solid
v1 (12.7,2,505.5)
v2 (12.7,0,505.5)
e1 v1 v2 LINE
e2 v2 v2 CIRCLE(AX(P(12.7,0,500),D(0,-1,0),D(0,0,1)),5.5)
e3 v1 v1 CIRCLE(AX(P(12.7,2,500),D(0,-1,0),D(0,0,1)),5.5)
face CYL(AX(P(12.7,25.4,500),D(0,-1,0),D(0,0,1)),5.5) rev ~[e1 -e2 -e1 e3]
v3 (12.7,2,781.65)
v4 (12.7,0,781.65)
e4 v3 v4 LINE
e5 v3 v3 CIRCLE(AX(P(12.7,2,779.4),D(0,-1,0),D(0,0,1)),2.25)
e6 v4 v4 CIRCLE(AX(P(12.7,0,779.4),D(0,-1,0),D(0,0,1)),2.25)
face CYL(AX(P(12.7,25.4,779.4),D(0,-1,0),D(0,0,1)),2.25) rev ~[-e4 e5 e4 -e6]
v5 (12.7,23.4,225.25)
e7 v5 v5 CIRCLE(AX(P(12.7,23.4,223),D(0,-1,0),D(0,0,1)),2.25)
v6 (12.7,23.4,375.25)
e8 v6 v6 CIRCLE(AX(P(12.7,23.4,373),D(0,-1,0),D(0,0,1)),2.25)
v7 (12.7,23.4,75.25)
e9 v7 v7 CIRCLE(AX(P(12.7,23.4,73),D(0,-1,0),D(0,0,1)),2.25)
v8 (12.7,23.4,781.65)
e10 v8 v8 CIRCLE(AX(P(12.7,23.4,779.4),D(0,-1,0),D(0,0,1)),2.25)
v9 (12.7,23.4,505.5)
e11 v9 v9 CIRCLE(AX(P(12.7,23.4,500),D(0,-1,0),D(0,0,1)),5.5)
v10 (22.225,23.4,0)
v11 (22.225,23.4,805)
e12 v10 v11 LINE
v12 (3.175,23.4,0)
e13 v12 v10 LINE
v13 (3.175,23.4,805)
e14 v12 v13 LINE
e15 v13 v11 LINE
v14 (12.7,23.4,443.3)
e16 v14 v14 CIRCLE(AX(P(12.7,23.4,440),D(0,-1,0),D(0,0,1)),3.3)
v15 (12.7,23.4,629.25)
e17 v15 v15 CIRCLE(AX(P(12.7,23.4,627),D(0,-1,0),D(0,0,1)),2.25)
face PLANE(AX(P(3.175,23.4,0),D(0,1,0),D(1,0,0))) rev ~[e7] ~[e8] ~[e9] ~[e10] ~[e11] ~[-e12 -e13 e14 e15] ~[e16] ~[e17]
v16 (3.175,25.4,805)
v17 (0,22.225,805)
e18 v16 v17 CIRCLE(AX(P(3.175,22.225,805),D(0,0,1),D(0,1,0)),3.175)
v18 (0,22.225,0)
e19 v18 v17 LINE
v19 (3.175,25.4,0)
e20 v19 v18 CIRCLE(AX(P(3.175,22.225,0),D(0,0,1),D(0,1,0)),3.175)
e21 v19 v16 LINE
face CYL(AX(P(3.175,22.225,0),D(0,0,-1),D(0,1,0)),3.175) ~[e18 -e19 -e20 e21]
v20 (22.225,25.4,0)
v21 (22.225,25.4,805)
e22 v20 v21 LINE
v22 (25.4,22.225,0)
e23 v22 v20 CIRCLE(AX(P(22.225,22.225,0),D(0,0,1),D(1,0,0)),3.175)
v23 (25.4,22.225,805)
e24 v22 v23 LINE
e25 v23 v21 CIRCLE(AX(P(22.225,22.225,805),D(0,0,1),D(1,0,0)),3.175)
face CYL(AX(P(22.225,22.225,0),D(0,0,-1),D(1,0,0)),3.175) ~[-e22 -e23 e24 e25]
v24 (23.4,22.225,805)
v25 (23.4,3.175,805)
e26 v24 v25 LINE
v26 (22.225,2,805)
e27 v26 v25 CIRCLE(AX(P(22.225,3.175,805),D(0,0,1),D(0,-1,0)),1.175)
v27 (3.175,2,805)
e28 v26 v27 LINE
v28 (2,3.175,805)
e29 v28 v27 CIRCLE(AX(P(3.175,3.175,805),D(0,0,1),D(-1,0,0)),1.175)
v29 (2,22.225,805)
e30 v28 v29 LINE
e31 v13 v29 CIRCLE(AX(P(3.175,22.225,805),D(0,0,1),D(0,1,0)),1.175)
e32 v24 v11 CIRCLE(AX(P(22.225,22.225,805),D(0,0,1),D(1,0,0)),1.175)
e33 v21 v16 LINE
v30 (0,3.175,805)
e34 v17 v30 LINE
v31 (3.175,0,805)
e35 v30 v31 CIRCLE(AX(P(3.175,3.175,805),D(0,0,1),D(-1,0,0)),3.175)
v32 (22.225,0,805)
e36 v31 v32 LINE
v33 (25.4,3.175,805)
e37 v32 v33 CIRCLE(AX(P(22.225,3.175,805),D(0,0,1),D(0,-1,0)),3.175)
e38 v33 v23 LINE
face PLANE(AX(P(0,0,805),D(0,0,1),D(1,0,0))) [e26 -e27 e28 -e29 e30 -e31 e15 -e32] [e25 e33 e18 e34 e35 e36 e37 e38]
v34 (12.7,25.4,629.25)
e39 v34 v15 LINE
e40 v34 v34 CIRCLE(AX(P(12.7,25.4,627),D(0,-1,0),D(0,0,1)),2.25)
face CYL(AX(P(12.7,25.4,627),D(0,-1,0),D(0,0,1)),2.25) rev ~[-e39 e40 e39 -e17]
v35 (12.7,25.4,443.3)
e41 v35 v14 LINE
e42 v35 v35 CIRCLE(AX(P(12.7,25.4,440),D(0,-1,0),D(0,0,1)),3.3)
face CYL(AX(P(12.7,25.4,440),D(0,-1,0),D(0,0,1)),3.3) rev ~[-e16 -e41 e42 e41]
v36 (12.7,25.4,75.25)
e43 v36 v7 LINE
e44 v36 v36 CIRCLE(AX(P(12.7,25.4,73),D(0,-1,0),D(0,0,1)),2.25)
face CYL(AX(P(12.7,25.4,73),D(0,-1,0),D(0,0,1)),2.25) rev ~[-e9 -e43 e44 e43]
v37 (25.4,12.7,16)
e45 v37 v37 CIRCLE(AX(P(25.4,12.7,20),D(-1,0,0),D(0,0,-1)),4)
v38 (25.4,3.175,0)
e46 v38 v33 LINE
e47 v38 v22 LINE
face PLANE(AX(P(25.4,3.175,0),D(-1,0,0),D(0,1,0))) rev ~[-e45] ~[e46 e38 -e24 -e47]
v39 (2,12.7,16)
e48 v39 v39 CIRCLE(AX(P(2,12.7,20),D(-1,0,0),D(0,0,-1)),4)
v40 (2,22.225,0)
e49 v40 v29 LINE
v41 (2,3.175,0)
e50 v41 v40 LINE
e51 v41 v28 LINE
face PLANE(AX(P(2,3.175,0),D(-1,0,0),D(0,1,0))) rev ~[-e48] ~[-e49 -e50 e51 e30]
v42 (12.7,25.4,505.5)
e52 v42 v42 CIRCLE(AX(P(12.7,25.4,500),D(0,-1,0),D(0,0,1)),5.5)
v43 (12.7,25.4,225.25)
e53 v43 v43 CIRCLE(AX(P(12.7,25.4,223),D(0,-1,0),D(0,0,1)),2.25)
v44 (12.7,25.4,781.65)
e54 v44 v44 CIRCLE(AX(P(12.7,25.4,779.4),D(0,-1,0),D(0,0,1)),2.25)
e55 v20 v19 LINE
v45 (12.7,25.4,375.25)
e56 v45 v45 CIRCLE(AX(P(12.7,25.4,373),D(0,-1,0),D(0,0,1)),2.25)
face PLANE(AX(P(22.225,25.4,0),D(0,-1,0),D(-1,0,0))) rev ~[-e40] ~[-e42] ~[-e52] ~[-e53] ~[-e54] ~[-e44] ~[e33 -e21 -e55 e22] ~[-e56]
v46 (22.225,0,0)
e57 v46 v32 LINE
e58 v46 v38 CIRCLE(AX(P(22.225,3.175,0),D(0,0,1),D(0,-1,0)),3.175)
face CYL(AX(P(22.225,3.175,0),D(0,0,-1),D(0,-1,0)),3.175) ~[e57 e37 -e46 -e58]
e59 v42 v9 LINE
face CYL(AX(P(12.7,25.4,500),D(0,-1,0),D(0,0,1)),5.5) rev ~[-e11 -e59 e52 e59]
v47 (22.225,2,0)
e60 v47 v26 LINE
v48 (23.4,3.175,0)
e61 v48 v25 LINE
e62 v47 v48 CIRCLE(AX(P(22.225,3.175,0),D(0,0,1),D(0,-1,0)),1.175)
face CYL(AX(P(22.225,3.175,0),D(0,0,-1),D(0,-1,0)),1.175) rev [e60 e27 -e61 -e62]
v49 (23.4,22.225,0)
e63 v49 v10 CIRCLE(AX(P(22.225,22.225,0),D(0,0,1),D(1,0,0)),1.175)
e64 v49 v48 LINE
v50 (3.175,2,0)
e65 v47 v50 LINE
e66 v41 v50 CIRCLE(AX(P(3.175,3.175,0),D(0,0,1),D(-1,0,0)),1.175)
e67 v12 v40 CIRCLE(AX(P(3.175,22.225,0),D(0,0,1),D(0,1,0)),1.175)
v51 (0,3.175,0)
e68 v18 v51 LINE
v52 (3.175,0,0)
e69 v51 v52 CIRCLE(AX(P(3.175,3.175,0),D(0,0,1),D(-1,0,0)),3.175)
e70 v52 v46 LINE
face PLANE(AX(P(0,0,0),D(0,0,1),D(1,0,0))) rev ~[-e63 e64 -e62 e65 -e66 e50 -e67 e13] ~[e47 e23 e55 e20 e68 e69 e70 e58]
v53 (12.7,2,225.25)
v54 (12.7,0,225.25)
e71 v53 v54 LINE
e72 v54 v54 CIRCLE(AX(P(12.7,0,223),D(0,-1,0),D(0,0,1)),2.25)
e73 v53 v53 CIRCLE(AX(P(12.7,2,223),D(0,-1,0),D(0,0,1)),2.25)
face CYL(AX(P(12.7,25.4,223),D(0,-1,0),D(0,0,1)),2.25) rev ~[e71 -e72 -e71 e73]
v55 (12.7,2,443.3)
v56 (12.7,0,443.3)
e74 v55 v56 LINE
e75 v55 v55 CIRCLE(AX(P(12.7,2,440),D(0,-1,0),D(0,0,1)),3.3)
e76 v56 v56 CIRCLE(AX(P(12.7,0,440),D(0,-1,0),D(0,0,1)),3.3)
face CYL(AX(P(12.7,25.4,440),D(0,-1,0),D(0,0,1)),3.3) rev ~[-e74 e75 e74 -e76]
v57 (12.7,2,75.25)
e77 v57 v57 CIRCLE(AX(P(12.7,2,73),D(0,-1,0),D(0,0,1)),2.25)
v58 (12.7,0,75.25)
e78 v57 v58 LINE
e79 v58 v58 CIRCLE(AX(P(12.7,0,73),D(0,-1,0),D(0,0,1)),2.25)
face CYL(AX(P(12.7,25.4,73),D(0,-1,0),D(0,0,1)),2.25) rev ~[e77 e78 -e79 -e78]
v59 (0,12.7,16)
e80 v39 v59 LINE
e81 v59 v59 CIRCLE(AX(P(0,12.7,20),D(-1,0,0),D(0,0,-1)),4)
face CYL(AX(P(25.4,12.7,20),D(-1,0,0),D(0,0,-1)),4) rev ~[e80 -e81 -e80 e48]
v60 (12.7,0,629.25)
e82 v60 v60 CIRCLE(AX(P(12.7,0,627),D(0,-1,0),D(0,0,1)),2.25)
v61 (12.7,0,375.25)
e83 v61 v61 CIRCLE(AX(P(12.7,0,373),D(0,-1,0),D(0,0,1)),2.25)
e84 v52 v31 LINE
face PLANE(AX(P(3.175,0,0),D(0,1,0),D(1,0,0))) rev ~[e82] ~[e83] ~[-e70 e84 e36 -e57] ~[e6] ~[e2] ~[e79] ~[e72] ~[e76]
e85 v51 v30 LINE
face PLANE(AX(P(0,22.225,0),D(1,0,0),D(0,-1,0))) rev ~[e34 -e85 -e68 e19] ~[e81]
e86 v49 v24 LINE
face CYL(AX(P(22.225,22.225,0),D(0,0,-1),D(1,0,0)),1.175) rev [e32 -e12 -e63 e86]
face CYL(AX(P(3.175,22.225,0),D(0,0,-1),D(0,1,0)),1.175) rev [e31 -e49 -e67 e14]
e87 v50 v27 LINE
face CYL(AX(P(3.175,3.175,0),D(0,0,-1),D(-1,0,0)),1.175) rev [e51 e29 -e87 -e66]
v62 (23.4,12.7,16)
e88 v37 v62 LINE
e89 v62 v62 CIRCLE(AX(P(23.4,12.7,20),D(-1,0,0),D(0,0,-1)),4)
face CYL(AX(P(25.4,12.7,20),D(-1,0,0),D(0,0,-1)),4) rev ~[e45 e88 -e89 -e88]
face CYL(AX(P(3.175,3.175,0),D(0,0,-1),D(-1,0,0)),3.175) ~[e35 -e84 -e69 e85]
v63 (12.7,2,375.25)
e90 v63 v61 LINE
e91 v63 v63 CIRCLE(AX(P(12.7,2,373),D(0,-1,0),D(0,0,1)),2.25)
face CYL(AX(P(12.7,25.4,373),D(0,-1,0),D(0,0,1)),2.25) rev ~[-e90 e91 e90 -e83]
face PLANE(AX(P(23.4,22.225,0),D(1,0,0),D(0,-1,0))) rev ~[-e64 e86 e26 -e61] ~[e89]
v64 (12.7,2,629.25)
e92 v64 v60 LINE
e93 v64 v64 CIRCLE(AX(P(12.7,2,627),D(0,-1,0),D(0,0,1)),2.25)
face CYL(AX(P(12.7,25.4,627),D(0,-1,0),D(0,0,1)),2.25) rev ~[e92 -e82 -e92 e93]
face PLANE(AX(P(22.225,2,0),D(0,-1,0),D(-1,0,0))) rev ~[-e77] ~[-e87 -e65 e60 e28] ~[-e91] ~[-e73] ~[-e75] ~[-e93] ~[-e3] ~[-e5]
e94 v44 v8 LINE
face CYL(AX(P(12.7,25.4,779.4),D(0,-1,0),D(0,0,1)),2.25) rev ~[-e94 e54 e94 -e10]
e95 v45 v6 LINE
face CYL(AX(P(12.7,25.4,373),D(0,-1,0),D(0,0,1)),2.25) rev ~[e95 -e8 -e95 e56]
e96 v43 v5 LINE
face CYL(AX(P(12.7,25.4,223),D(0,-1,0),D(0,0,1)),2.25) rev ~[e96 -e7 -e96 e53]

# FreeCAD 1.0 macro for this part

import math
import FreeCAD as App
import Part
import Sketcher

V = App.Vector

doc = App.newDocument("Part")
body = doc.addObject("PartDesign::Body", "Body")

sketch1 = body.newObject("Sketcher::SketchObject", "Sketch")
sketch1.AttachmentSupport = (doc.getObject("XY_Plane"), [""])
sketch1.MapMode = "FlatFace"
sketch1.addGeometry(Part.ArcOfCircle(Part.Circle(V(3.2, 3.2, 0), V(0, 0, 1), 3.2), math.radians(180), math.radians(270)), False)
sketch1.addGeometry(Part.LineSegment(V(3.2, 0, 0), V(22.2, 0, 0)), False)
sketch1.addGeometry(Part.ArcOfCircle(Part.Circle(V(22.2, 3.2, 0), V(0, 0, 1), 3.2), math.radians(-90), math.radians(0)), False)
sketch1.addGeometry(Part.LineSegment(V(25.4, 3.2, 0), V(25.4, 22.2, 0)), False)
sketch1.addGeometry(Part.ArcOfCircle(Part.Circle(V(22.2, 22.2, 0), V(0, 0, 1), 3.2), math.radians(0), math.radians(90)), False)
sketch1.addGeometry(Part.LineSegment(V(22.2, 25.4, 0), V(3.2, 25.4, 0)), False)
sketch1.addGeometry(Part.ArcOfCircle(Part.Circle(V(3.2, 22.2, 0), V(0, 0, 1), 3.2), math.radians(90), math.radians(180)), False)
sketch1.addGeometry(Part.LineSegment(V(0, 22.2, 0), V(0, 3.2, 0)), False)
sketch1.addGeometry(Part.ArcOfCircle(Part.Circle(V(3.2, 22.2, 0), V(0, 0, 1), 1.2), math.radians(90), math.radians(180)), False)
sketch1.addGeometry(Part.LineSegment(V(3.2, 23.4, 0), V(22.2, 23.4, 0)), False)
sketch1.addGeometry(Part.ArcOfCircle(Part.Circle(V(22.2, 22.2, 0), V(0, 0, 1), 1.2), math.radians(0), math.radians(90)), False)
sketch1.addGeometry(Part.LineSegment(V(23.4, 22.2, 0), V(23.4, 3.2, 0)), False)
sketch1.addGeometry(Part.ArcOfCircle(Part.Circle(V(22.2, 3.2, 0), V(0, 0, 1), 1.2), math.radians(-90), math.radians(0)), False)
sketch1.addGeometry(Part.LineSegment(V(22.2, 2, 0), V(3.2, 2, 0)), False)
sketch1.addGeometry(Part.ArcOfCircle(Part.Circle(V(3.2, 3.2, 0), V(0, 0, 1), 1.2), math.radians(180), math.radians(270)), False)
sketch1.addGeometry(Part.LineSegment(V(2, 3.2, 0), V(2, 22.2, 0)), False)
sketch1.addConstraint(Sketcher.Constraint("Tangent", 0, 2, 1, 1))
sketch1.addConstraint(Sketcher.Constraint("Tangent", 1, 2, 2, 1))
sketch1.addConstraint(Sketcher.Constraint("Tangent", 2, 2, 3, 1))
sketch1.addConstraint(Sketcher.Constraint("Tangent", 3, 2, 4, 1))
sketch1.addConstraint(Sketcher.Constraint("Tangent", 4, 2, 5, 1))
sketch1.addConstraint(Sketcher.Constraint("Tangent", 5, 2, 6, 1))
sketch1.addConstraint(Sketcher.Constraint("Tangent", 6, 2, 7, 1))
sketch1.addConstraint(Sketcher.Constraint("Tangent", 7, 2, 0, 1))
sketch1.addConstraint(Sketcher.Constraint("Tangent", 8, 1, 9, 1))
sketch1.addConstraint(Sketcher.Constraint("Tangent", 9, 2, 10, 2))
sketch1.addConstraint(Sketcher.Constraint("Tangent", 10, 1, 11, 1))
sketch1.addConstraint(Sketcher.Constraint("Tangent", 11, 2, 12, 2))
sketch1.addConstraint(Sketcher.Constraint("Tangent", 12, 1, 13, 1))
sketch1.addConstraint(Sketcher.Constraint("Tangent", 13, 2, 14, 2))
sketch1.addConstraint(Sketcher.Constraint("Tangent", 14, 1, 15, 1))
sketch1.addConstraint(Sketcher.Constraint("Tangent", 15, 2, 8, 2))
sketch1.addConstraint(Sketcher.Constraint("Horizontal", 1))
sketch1.addConstraint(Sketcher.Constraint("Vertical", 3))
sketch1.addConstraint(Sketcher.Constraint("Horizontal", 5))
sketch1.addConstraint(Sketcher.Constraint("Vertical", 7))
sketch1.addConstraint(Sketcher.Constraint("Horizontal", 9))
sketch1.addConstraint(Sketcher.Constraint("Vertical", 11))
sketch1.addConstraint(Sketcher.Constraint("Horizontal", 13))
sketch1.addConstraint(Sketcher.Constraint("Vertical", 15))
sketch1.addConstraint(Sketcher.Constraint("Coincident", 8, 3, 6, 3))
sketch1.addConstraint(Sketcher.Constraint("Coincident", 10, 3, 4, 3))
sketch1.addConstraint(Sketcher.Constraint("Coincident", 12, 3, 2, 3))
sketch1.addConstraint(Sketcher.Constraint("Equal", 0, 2))
sketch1.addConstraint(Sketcher.Constraint("Equal", 2, 4))
sketch1.addConstraint(Sketcher.Constraint("Equal", 4, 6))
sketch1.addConstraint(Sketcher.Constraint("Equal", 12, 14))
sketch1.addConstraint(Sketcher.Constraint("PointOnObject", 0, 2, -1))
sketch1.addConstraint(Sketcher.Constraint("PointOnObject", 6, 2, -2))
sketch1.addConstraint(Sketcher.Constraint("Equal", 13, 3))
sketch1.addConstraint(Sketcher.Constraint("DistanceY", -1, 1, 12, 1, 2.0))
sketch1.addConstraint(Sketcher.Constraint("Radius", 0, 3.175))
sketch1.addConstraint(Sketcher.Constraint("DistanceX", -1, 1, 2, 2, 25.4))
pad1 = body.newObject("PartDesign::Pad", "Pad")
pad1.Profile = sketch1
pad1.Length = 1000

sketch2 = body.newObject("Sketcher::SketchObject", "Sketch001")
sketch2.AttachmentSupport = (doc.getObject("XZ_Plane"), [""])
sketch2.MapMode = "FlatFace"
sketch2.AttachmentOffset = App.Placement(V(0, 0, -25.4), App.Rotation())
sketch2.addGeometry(Part.Circle(V(13, 500, 0), V(0, 0, 1), 6), False)
sketch2.addConstraint(Sketcher.Constraint("Diameter", 0, 11.0))
sketch2.addConstraint(Sketcher.Constraint("DistanceY", -1, 1, 0, 3, 500.0))
sketch2.addConstraint(Sketcher.Constraint("DistanceX", -1, 1, 0, 3, 12.7))
doc.recompute()
hole = body.newObject("PartDesign::Hole", "Hole")
hole.Profile = sketch2
hole.ThreadType = "None"
hole.Diameter = 11
hole.DepthType = "ThroughAll"
hole.Reversed = True

sketch3 = body.newObject("Sketcher::SketchObject", "Sketch002")
sketch3.AttachmentSupport = (doc.getObject("XZ_Plane"), [""])
sketch3.MapMode = "FlatFace"
sketch3.AttachmentOffset = App.Placement(V(0, 0, -25.4), App.Rotation())
sketch3.addGeometry(Part.Circle(V(12.7, 73, 0), V(0, 0, 1), 2.2), False)
sketch3.addGeometry(Part.Circle(V(12.7, 223, 0), V(0, 0, 1), 2.2), False)
sketch3.addGeometry(Part.Circle(V(12.7, 373, 0), V(0, 0, 1), 2.2), False)
sketch3.addConstraint(Sketcher.Constraint("Equal", 0, 1))
sketch3.addConstraint(Sketcher.Constraint("Equal", 1, 2))
sketch3.addConstraint(Sketcher.Constraint("Vertical", 0, 3, 1, 3))
sketch3.addConstraint(Sketcher.Constraint("Vertical", 1, 3, 2, 3))
sketch3.addConstraint(Sketcher.Constraint("Diameter", 0, 4.5))
sketch3.addConstraint(Sketcher.Constraint("DistanceY", -1, 1, 0, 3, 73.0))
sketch3.addConstraint(Sketcher.Constraint("DistanceY", -1, 1, 1, 3, 223.0))
sketch3.addConstraint(Sketcher.Constraint("DistanceY", -1, 1, 2, 3, 373.0))
sketch3.addConstraint(Sketcher.Constraint("DistanceX", -1, 1, 0, 3, 12.7))
doc.recompute()
hole2 = body.newObject("PartDesign::Hole", "Hole001")
hole2.Profile = sketch3
hole2.ThreadType = "None"
hole2.Diameter = 4.5
hole2.DepthType = "ThroughAll"
hole2.Reversed = True

sketch4 = body.newObject("Sketcher::SketchObject", "Sketch003")
sketch4.AttachmentSupport = (doc.getObject("XZ_Plane"), [""])
sketch4.MapMode = "FlatFace"
sketch4.AttachmentOffset = App.Placement(V(0, 0, -25.4), App.Rotation())
sketch4.addGeometry(Part.Circle(V(12.7, 627, 0), V(0, 0, 1), 2.2), False)
sketch4.addGeometry(Part.Circle(V(12.7, 779.4, 0), V(0, 0, 1), 2.2), False)
sketch4.addGeometry(Part.Circle(V(12.7, 931.8, 0), V(0, 0, 1), 2.2), False)
sketch4.addConstraint(Sketcher.Constraint("Equal", 0, 1))
sketch4.addConstraint(Sketcher.Constraint("Equal", 1, 2))
sketch4.addConstraint(Sketcher.Constraint("Vertical", 0, 3, 1, 3))
sketch4.addConstraint(Sketcher.Constraint("Vertical", 1, 3, 2, 3))
sketch4.addConstraint(Sketcher.Constraint("Diameter", 0, 4.5))
sketch4.addConstraint(Sketcher.Constraint("DistanceY", -1, 1, 0, 3, 627.0))
sketch4.addConstraint(Sketcher.Constraint("DistanceX", -1, 1, 0, 3, 12.7))
sketch4.addConstraint(Sketcher.Constraint("DistanceY", -1, 1, 1, 3, 779.4))
sketch4.addConstraint(Sketcher.Constraint("DistanceY", -1, 1, 2, 3, 931.8))
doc.recompute()
hole3 = body.newObject("PartDesign::Hole", "Hole002")
hole3.Profile = sketch4
hole3.ThreadType = "None"
hole3.Diameter = 4.5
hole3.DepthType = "ThroughAll"
hole3.Reversed = True

sketch5 = body.newObject("Sketcher::SketchObject", "Sketch004")
sketch5.AttachmentSupport = (doc.getObject("YZ_Plane"), [""])
sketch5.MapMode = "FlatFace"
sketch5.AttachmentOffset = App.Placement(V(0, 0, 25.4), App.Rotation())
sketch5.addGeometry(Part.Circle(V(12.7, 970, 0), V(0, 0, 1), 4), False)
sketch5.addGeometry(Part.Circle(V(12.7, 20, 0), V(0, 0, 1), 4), False)
sketch5.addConstraint(Sketcher.Constraint("Equal", 0, 1))
sketch5.addConstraint(Sketcher.Constraint("Vertical", 0, 3, 1, 3))
sketch5.addConstraint(Sketcher.Constraint("Diameter", 0, 8.0))
sketch5.addConstraint(Sketcher.Constraint("DistanceY", -1, 1, 0, 3, 970.0))
sketch5.addConstraint(Sketcher.Constraint("DistanceY", -1, 1, 1, 3, 20.0))
sketch5.addConstraint(Sketcher.Constraint("DistanceX", -1, 1, 0, 3, 12.7))
doc.recompute()
hole4 = body.newObject("PartDesign::Hole", "Hole003")
hole4.Profile = sketch5
hole4.ThreadType = "None"
hole4.Diameter = 8
hole4.DepthType = "ThroughAll"

sketch6 = body.newObject("Sketcher::SketchObject", "Sketch005")
sketch6.AttachmentSupport = (doc.getObject("XZ_Plane"), [""])
sketch6.MapMode = "FlatFace"
sketch6.AttachmentOffset = App.Placement(V(0, 0, -25.4), App.Rotation())
sketch6.addGeometry(Part.Circle(V(12.7, 440, 0), V(0, 0, 1), 3.3), False)
sketch6.addConstraint(Sketcher.Constraint("Diameter", 0, 6.6))
sketch6.addConstraint(Sketcher.Constraint("DistanceY", -1, 1, 0, 3, 440.0))
sketch6.addConstraint(Sketcher.Constraint("DistanceX", -1, 1, 0, 3, 12.7))
doc.recompute()
hole5 = body.newObject("PartDesign::Hole", "Hole004")
hole5.Profile = sketch6
hole5.ThreadType = "None"
hole5.Diameter = 6.6
hole5.DepthType = "ThroughAll"
hole5.Reversed = True

sketch7 = body.newObject("Sketcher::SketchObject", "Sketch006")
sketch7.AttachmentSupport = (doc.getObject("XY_Plane"), [""])
sketch7.MapMode = "FlatFace"
sketch7.AttachmentOffset = App.Placement(V(0, 0, 1000), App.Rotation())
sketch7.addGeometry(Part.ArcOfCircle(Part.Circle(V(3.2, 22.2, 0), V(0, 0, 1), 3.2), math.radians(90), math.radians(180)), False)
sketch7.addGeometry(Part.LineSegment(V(0, 22.2, 0), V(0, 3.2, 0)), False)
sketch7.addGeometry(Part.ArcOfCircle(Part.Circle(V(3.2, 3.2, 0), V(0, 0, 1), 3.2), math.radians(180), math.radians(270)), False)
sketch7.addGeometry(Part.LineSegment(V(3.2, 0, 0), V(22.2, 0, 0)), False)
sketch7.addGeometry(Part.ArcOfCircle(Part.Circle(V(22.2, 3.2, 0), V(0, 0, 1), 3.2), math.radians(-90), math.radians(0)), False)
sketch7.addGeometry(Part.LineSegment(V(25.4, 3.2, 0), V(25.4, 22.2, 0)), False)
sketch7.addGeometry(Part.ArcOfCircle(Part.Circle(V(22.2, 22.2, 0), V(0, 0, 1), 3.2), math.radians(0), math.radians(90)), False)
sketch7.addGeometry(Part.LineSegment(V(22.2, 25.4, 0), V(3.2, 25.4, 0)), False)
sketch7.addGeometry(Part.ArcOfCircle(Part.Circle(V(22.2, 22.2, 0), V(0, 0, 1), 1.2), math.radians(0), math.radians(90)), False)
sketch7.addGeometry(Part.LineSegment(V(23.4, 22.2, 0), V(23.4, 3.2, 0)), False)
sketch7.addGeometry(Part.ArcOfCircle(Part.Circle(V(22.2, 3.2, 0), V(0, 0, 1), 1.2), math.radians(-90), math.radians(0)), False)
sketch7.addGeometry(Part.LineSegment(V(22.2, 2, 0), V(3.2, 2, 0)), False)
sketch7.addGeometry(Part.ArcOfCircle(Part.Circle(V(3.2, 3.2, 0), V(0, 0, 1), 1.2), math.radians(180), math.radians(270)), False)
sketch7.addGeometry(Part.LineSegment(V(2, 3.2, 0), V(2, 22.2, 0)), False)
sketch7.addGeometry(Part.ArcOfCircle(Part.Circle(V(3.2, 22.2, 0), V(0, 0, 1), 1.2), math.radians(90), math.radians(180)), False)
sketch7.addGeometry(Part.LineSegment(V(3.2, 23.4, 0), V(22.2, 23.4, 0)), False)
sketch7.addConstraint(Sketcher.Constraint("Tangent", 0, 2, 1, 1))
sketch7.addConstraint(Sketcher.Constraint("Tangent", 1, 2, 2, 1))
sketch7.addConstraint(Sketcher.Constraint("Tangent", 2, 2, 3, 1))
sketch7.addConstraint(Sketcher.Constraint("Tangent", 3, 2, 4, 1))
sketch7.addConstraint(Sketcher.Constraint("Tangent", 4, 2, 5, 1))
sketch7.addConstraint(Sketcher.Constraint("Tangent", 5, 2, 6, 1))
sketch7.addConstraint(Sketcher.Constraint("Tangent", 6, 2, 7, 1))
sketch7.addConstraint(Sketcher.Constraint("Tangent", 7, 2, 0, 1))
sketch7.addConstraint(Sketcher.Constraint("Tangent", 8, 1, 9, 1))
sketch7.addConstraint(Sketcher.Constraint("Tangent", 9, 2, 10, 2))
sketch7.addConstraint(Sketcher.Constraint("Tangent", 10, 1, 11, 1))
sketch7.addConstraint(Sketcher.Constraint("Tangent", 11, 2, 12, 2))
sketch7.addConstraint(Sketcher.Constraint("Tangent", 12, 1, 13, 1))
sketch7.addConstraint(Sketcher.Constraint("Tangent", 13, 2, 14, 2))
sketch7.addConstraint(Sketcher.Constraint("Tangent", 14, 1, 15, 1))
sketch7.addConstraint(Sketcher.Constraint("Tangent", 15, 2, 8, 2))
sketch7.addConstraint(Sketcher.Constraint("Vertical", 1))
sketch7.addConstraint(Sketcher.Constraint("Horizontal", 3))
sketch7.addConstraint(Sketcher.Constraint("Vertical", 5))
sketch7.addConstraint(Sketcher.Constraint("Horizontal", 7))
sketch7.addConstraint(Sketcher.Constraint("Vertical", 9))
sketch7.addConstraint(Sketcher.Constraint("Horizontal", 11))
sketch7.addConstraint(Sketcher.Constraint("Vertical", 13))
sketch7.addConstraint(Sketcher.Constraint("Horizontal", 15))
sketch7.addConstraint(Sketcher.Constraint("Coincident", 8, 3, 6, 3))
sketch7.addConstraint(Sketcher.Constraint("Coincident", 10, 3, 4, 3))
sketch7.addConstraint(Sketcher.Constraint("Coincident", 12, 3, 2, 3))
sketch7.addConstraint(Sketcher.Constraint("Equal", 0, 2))
sketch7.addConstraint(Sketcher.Constraint("Equal", 2, 4))
sketch7.addConstraint(Sketcher.Constraint("Equal", 4, 6))
sketch7.addConstraint(Sketcher.Constraint("Equal", 12, 14))
sketch7.addConstraint(Sketcher.Constraint("PointOnObject", 0, 2, -2))
sketch7.addConstraint(Sketcher.Constraint("PointOnObject", 2, 2, -1))
sketch7.addConstraint(Sketcher.Constraint("Equal", 15, 1))
sketch7.addConstraint(Sketcher.Constraint("DistanceY", -1, 1, 10, 1, 2.0))
sketch7.addConstraint(Sketcher.Constraint("Radius", 0, 3.175))
sketch7.addConstraint(Sketcher.Constraint("DistanceX", 3, 1, 3, 2, 19.05))
pocket1 = body.newObject("PartDesign::Pocket", "Pocket")
pocket1.Profile = sketch7
pocket1.Length = 195

doc.recompute()
